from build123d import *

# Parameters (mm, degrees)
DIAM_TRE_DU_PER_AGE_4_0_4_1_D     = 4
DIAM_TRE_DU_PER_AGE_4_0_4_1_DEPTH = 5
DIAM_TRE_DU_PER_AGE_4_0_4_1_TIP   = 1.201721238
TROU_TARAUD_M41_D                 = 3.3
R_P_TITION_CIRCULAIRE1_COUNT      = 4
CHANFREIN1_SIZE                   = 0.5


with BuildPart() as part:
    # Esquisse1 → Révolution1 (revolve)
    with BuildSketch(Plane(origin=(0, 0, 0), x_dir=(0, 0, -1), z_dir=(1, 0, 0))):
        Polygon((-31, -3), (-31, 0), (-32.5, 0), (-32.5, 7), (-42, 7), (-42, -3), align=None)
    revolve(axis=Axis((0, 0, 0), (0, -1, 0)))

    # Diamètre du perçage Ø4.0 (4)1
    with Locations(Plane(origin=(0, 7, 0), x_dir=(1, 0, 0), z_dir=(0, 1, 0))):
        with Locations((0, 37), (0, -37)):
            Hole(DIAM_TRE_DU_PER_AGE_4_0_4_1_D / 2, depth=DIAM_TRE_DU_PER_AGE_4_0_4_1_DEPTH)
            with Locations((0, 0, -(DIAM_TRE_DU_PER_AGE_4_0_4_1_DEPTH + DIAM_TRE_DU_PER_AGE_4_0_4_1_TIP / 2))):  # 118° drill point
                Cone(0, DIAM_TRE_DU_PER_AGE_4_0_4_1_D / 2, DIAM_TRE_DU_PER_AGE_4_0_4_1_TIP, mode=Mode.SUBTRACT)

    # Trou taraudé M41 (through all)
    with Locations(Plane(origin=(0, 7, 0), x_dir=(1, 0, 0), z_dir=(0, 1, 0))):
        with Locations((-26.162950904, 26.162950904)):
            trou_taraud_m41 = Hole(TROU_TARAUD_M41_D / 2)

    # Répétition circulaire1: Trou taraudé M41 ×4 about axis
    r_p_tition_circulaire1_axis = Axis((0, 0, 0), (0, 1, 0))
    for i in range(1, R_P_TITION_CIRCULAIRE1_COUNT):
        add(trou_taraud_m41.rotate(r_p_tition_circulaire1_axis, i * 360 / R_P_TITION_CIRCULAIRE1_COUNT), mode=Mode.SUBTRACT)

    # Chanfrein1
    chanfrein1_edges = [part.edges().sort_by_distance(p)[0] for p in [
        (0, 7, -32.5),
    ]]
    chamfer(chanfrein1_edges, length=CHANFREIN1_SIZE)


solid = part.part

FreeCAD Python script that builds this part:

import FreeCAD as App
import Part
import Sketcher


def edges_at(feature, points):
    """Names of the edges that pass closest to the given points."""
    edges = feature.Shape.Edges
    near = lambda p: min(range(len(edges)), key=lambda i: edges[i].distToShape(Part.Vertex(*p))[0])
    return sorted({f"Edge{near(p) + 1}" for p in points})


def add_polygon(sketch, points):
    """Adds a closed chain of lines whose ends are joined by coincident constraints."""
    first, n = sketch.GeometryCount, len(points)
    for a, b in zip(points, points[1:] + points[:1]):
        sketch.addGeometry(Part.LineSegment(App.Vector(*a, 0), App.Vector(*b, 0)), False)
    for i in range(n):
        sketch.addConstraint(Sketcher.Constraint("Coincident", first + i, 2, first + (i + 1) % n, 1))

doc = App.newDocument("Part")
body = doc.addObject("PartDesign::Body", "Body")

# Sketch on YZ plane
sketch1 = body.newObject("Sketcher::SketchObject", "Sketch")
sketch1.AttachmentSupport = (doc.getObject("YZ_Plane"), [""])
sketch1.MapMode = "FlatFace"
add_polygon(sketch1, [(-3, 31), (0, 31), (0, 32.5), (7, 32.5), (7, 42), (-3, 42)])  # lines 0-5
sketch1.addConstraint(Sketcher.Constraint("Horizontal", 0))
sketch1.addConstraint(Sketcher.Constraint("Vertical", 1))
sketch1.addConstraint(Sketcher.Constraint("Horizontal", 2))
sketch1.addConstraint(Sketcher.Constraint("Vertical", 3))
sketch1.addConstraint(Sketcher.Constraint("Horizontal", 4))
sketch1.addConstraint(Sketcher.Constraint("Vertical", 5))
sketch1.addConstraint(Sketcher.Constraint("PointOnObject", 0, 2, -2))
sketch1.addConstraint(Sketcher.Constraint("DistanceX", 0, 1, 0, 2, 3.0))
sketch1.addConstraint(Sketcher.Constraint("DistanceX", 2, 1, 2, 2, 7.0))
sketch1.addConstraint(Sketcher.Constraint("DistanceY", 5, 2, 5, 1, 11.0))
sketch1.addConstraint(Sketcher.Constraint("DistanceY", 1, 1, 1, 2, 1.5))
sketch1.addConstraint(Sketcher.Constraint("DistanceY", -1, 1, 0, 2, 31.0))
revolution = body.newObject("PartDesign::Revolution", "Revolution")
revolution.Profile = sketch1
revolution.ReferenceAxis = (sketch1, ["H_Axis"])
revolution.Angle = 360

# Sketch on XZ plane
sketch2 = body.newObject("Sketcher::SketchObject", "Sketch001")
sketch2.AttachmentSupport = (doc.getObject("XZ_Plane"), [""])
sketch2.MapMode = "FlatFace"
sketch2.AttachmentOffset = App.Placement(App.Vector(0, 0, -7), App.Rotation())
sketch2.addGeometry(Part.Circle(App.Vector(0, -37, 0), App.Vector(0, 0, 1), 2), False)
sketch2.addGeometry(Part.Circle(App.Vector(0, 37, 0), App.Vector(0, 0, 1), 2), False)
sketch2.addConstraint(Sketcher.Constraint("Equal", 0, 1))
sketch2.addConstraint(Sketcher.Constraint("Symmetric", 0, 3, 1, 3, -1, 1))
sketch2.addConstraint(Sketcher.Constraint("PointOnObject", 0, 3, -2))
sketch2.addConstraint(Sketcher.Constraint("Diameter", 0, 4.0))
sketch2.addConstraint(Sketcher.Constraint("DistanceY", 0, 3, -1, 1, 37.0))
doc.recompute()
hole = body.newObject("PartDesign::Hole", "Hole")
hole.Profile = sketch2
hole.ThreadType = "None"
hole.Diameter = 4
hole.DepthType = "Dimension"
hole.Depth = 5
hole.DrillPoint = "Angled"
hole.DrillPointAngle = 118
hole.Reversed = True

# Sketch on XZ plane
sketch3 = body.newObject("Sketcher::SketchObject", "Sketch002")
sketch3.AttachmentSupport = (doc.getObject("XZ_Plane"), [""])
sketch3.MapMode = "FlatFace"
sketch3.AttachmentOffset = App.Placement(App.Vector(0, 0, -7), App.Rotation())
sketch3.addGeometry(Part.Circle(App.Vector(-26.2, -26.2, 0), App.Vector(0, 0, 1), 1.6), False)
sketch3.addConstraint(Sketcher.Constraint("Diameter", 0, 3.3))
sketch3.addConstraint(Sketcher.Constraint("DistanceX", 0, 3, -1, 1, 26.162951))
sketch3.addConstraint(Sketcher.Constraint("DistanceY", 0, 3, -1, 1, 26.162951))
doc.recompute()
hole2 = body.newObject("PartDesign::Hole", "Hole001")
hole2.Profile = sketch3
hole2.ThreadType = "None"
hole2.Diameter = 3.3
hole2.DepthType = "ThroughAll"
hole2.Reversed = True
doc.recompute()

polarpattern = body.newObject("PartDesign::PolarPattern", "PolarPattern")
polarpattern.Originals = [hole2]
polarpattern.Axis = (doc.getObject("Y_Axis"), [""])
polarpattern.Angle = 360
polarpattern.Occurrences = 4
body.Tip = polarpattern
doc.recompute()

chamfer = body.newObject("PartDesign::Chamfer", "Chamfer")
chamfer.Base = (polarpattern, edges_at(polarpattern, [(0, 7, -32.5)]))
chamfer.Size = 0.5

doc.recompute()
